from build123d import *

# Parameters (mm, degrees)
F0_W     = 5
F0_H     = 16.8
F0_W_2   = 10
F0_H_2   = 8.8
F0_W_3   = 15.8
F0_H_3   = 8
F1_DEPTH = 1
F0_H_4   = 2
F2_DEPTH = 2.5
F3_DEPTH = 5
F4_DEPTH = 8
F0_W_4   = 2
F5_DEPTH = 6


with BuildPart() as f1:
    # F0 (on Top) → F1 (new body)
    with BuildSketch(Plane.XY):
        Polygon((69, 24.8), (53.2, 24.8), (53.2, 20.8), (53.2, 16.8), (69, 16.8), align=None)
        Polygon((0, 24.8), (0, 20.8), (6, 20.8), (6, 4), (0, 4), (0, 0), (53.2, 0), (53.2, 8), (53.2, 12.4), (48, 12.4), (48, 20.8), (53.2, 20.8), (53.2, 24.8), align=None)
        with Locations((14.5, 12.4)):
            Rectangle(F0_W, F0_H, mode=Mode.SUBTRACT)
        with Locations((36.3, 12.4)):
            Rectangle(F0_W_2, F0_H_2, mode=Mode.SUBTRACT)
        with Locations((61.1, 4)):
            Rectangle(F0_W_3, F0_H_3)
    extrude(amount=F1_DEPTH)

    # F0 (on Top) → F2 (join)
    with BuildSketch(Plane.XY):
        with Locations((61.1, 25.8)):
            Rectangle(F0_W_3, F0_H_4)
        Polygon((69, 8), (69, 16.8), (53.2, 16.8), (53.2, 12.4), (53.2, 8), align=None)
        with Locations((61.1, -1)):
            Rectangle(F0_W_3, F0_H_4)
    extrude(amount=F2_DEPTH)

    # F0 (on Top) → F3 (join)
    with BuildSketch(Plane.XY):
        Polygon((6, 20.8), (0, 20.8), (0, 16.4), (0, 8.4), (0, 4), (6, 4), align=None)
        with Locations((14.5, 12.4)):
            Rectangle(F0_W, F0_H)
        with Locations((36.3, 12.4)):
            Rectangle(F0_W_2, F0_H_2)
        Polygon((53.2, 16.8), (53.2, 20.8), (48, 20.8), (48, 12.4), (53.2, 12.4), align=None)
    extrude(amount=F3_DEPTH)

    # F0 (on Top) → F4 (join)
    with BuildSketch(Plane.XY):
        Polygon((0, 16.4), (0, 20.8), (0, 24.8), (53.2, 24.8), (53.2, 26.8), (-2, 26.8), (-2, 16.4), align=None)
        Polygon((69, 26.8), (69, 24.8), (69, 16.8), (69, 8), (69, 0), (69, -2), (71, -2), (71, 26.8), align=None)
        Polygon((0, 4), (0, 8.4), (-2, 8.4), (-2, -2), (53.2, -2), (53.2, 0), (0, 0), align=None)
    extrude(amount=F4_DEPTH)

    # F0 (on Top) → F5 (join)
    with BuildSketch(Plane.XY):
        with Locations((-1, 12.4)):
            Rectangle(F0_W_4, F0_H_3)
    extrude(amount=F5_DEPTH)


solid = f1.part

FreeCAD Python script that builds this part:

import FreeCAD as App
import Part
import Sketcher
from FreeCAD import Vector
Q = App.Units.Quantity


def add_polygon(sketch, points):
    """Adds a closed chain of lines whose ends are joined by coincident constraints."""
    first, n = sketch.GeometryCount, len(points)
    for a, b in zip(points, points[1:] + points[:1]):
        sketch.addGeometry(Part.LineSegment(App.Vector(*a, 0), App.Vector(*b, 0)), False)
    for i in range(n):
        sketch.addConstraint(Sketcher.Constraint("Coincident", first + i, 2, first + (i + 1) % n, 1))

doc = App.newDocument("Part")
body = doc.addObject("PartDesign::Body", "Body")

# Sketch on XY plane
sketch1 = body.newObject("Sketcher::SketchObject", "Sketch")
sketch1.AttachmentSupport = (doc.getObject("XY_Plane"), [""])
sketch1.MapMode = "FlatFace"
add_polygon(sketch1, [(69, 24.8), (0, 24.8), (0, 20.8), (6, 20.8), (6, 4), (0, 4), (0, 0), (69, 0), (69, 8), (53.2, 8), (53.2, 12.4), (48, 12.4), (48, 20.8), (53.2, 20.8), (53.2, 16.8), (69, 16.8)])  # lines 0-15
add_polygon(sketch1, [(17, 4), (12, 4), (12, 20.8), (17, 20.8)])  # lines 16-19
add_polygon(sketch1, [(41.3, 8), (31.3, 8), (31.3, 16.8), (41.3, 16.8)])  # lines 20-23
sketch1.addConstraint([
    Sketcher.Constraint("Horizontal", 0),
    Sketcher.Constraint("Vertical", 1),
    Sketcher.Constraint("Horizontal", 2),
    Sketcher.Constraint("Vertical", 3),
    Sketcher.Constraint("Horizontal", 4),
    Sketcher.Constraint("Vertical", 5),
    Sketcher.Constraint("Horizontal", 6),
    Sketcher.Constraint("Vertical", 7),
    Sketcher.Constraint("Horizontal", 8),
    Sketcher.Constraint("Vertical", 9),
    Sketcher.Constraint("Horizontal", 10),
    Sketcher.Constraint("Vertical", 11),
    Sketcher.Constraint("Horizontal", 12),
    Sketcher.Constraint("Vertical", 13),
    Sketcher.Constraint("Horizontal", 14),
    Sketcher.Constraint("Vertical", 15),
    Sketcher.Constraint("Horizontal", 16),
    Sketcher.Constraint("Vertical", 17),
    Sketcher.Constraint("Horizontal", 18),
    Sketcher.Constraint("Vertical", 19),
    Sketcher.Constraint("Horizontal", 20),
    Sketcher.Constraint("Vertical", 21),
    Sketcher.Constraint("Horizontal", 22),
    Sketcher.Constraint("Vertical", 23),
    Sketcher.Constraint("Coincident", 5, 2, -1, 1),
    Sketcher.Constraint("PointOnObject", 0, 2, -2),
    Sketcher.Constraint("Horizontal", 2, 2, 11, 2),
    Sketcher.Constraint("Horizontal", 4, 2, 16, 2),
    Sketcher.Constraint("Horizontal", 12, 2, 17, 2),
    Sketcher.Constraint("Horizontal", 8, 2, 20, 2),
    Sketcher.Constraint("Horizontal", 14, 2, 21, 2),
    Sketcher.Constraint("Vertical", 9, 2, 12, 2),
    Sketcher.Constraint("Vertical", 7, 2, 14, 2),
    Sketcher.Constraint("Equal", 1, 5),
    Sketcher.Constraint("Equal", 5, 13),
    Sketcher.Constraint("Equal", 7, 15),
    Sketcher.Constraint("DistanceX", 0, 2, 0, 1, Q("69 mm")),
    Sketcher.Constraint("DistanceX", 2, 1, 2, 2, Q("6 mm")),
    Sketcher.Constraint("DistanceX", 16, 2, 16, 1, Q("5 mm")),
    Sketcher.Constraint("DistanceX", 20, 2, 20, 1, Q("10 mm")),
    Sketcher.Constraint("DistanceY", 1, 2, 1, 1, Q("4 mm")),
    Sketcher.Constraint("DistanceX", 8, 2, 8, 1, Q("15.8 mm")),
    Sketcher.Constraint("DistanceX", 10, 2, 10, 1, Q("5.2 mm")),
    Sketcher.Constraint("DistanceY", 3, 2, 3, 1, Q("16.8 mm")),
    Sketcher.Constraint("DistanceY", 9, 1, 9, 2, Q("4.4 mm")),
    Sketcher.Constraint("DistanceX", -1, 1, 16, 2, Q("12 mm")),
    Sketcher.Constraint("DistanceX", -1, 1, 20, 2, Q("31.3 mm")),
])
pad1 = body.newObject("PartDesign::Pad", "Pad")
pad1.Profile = sketch1
pad1.Length = 1

# Sketch on XY plane
sketch2 = body.newObject("Sketcher::SketchObject", "Sketch001")
sketch2.AttachmentSupport = (doc.getObject("XY_Plane"), [""])
sketch2.MapMode = "FlatFace"
add_polygon(sketch2, [(53.2, 26.8), (53.2, 24.8), (69, 24.8), (69, 26.8)])  # lines 0-3
add_polygon(sketch2, [(69, 8), (69, 16.8), (53.2, 16.8), (53.2, 8)])  # lines 4-7
add_polygon(sketch2, [(53.2, 0), (53.2, -2), (69, -2), (69, 0)])  # lines 8-11
sketch2.addConstraint([
    Sketcher.Constraint("Vertical", 0),
    Sketcher.Constraint("Horizontal", 1),
    Sketcher.Constraint("Vertical", 2),
    Sketcher.Constraint("Horizontal", 3),
    Sketcher.Constraint("Vertical", 4),
    Sketcher.Constraint("Horizontal", 5),
    Sketcher.Constraint("Vertical", 6),
    Sketcher.Constraint("Horizontal", 7),
    Sketcher.Constraint("Vertical", 8),
    Sketcher.Constraint("Horizontal", 9),
    Sketcher.Constraint("Vertical", 10),
    Sketcher.Constraint("Horizontal", 11),
    Sketcher.Constraint("PointOnObject", 10, 2, -1),
    Sketcher.Constraint("Vertical", 2, 2, 4, 2),
    Sketcher.Constraint("Vertical", 3, 2, 5, 2),
    Sketcher.Constraint("Vertical", 6, 2, 8, 2),
    Sketcher.Constraint("Vertical", 7, 2, 9, 2),
    Sketcher.Constraint("Equal", 2, 8),
    Sketcher.Constraint("DistanceY", 0, 2, 0, 1, Q("2 mm")),
    Sketcher.Constraint("DistanceX", 1, 1, 1, 2, Q("15.8 mm")),
    Sketcher.Constraint("DistanceY", 4, 1, 4, 2, Q("8.8 mm")),
    Sketcher.Constraint("DistanceX", -1, 1, 1, 2, Q("69 mm")),
    Sketcher.Constraint("DistanceY", -1, 1, 6, 2, Q("8 mm")),
    Sketcher.Constraint("DistanceY", 4, 2, 1, 2, Q("8 mm")),
])
pad2 = body.newObject("PartDesign::Pad", "Pad001")
pad2.Profile = sketch2
pad2.Length = 2.5

# Sketch on XY plane
sketch3 = body.newObject("Sketcher::SketchObject", "Sketch002")
sketch3.AttachmentSupport = (doc.getObject("XY_Plane"), [""])
sketch3.MapMode = "FlatFace"
add_polygon(sketch3, [(6, 20.8), (0, 20.8), (0, 4), (6, 4)])  # lines 0-3
add_polygon(sketch3, [(12, 20.8), (12, 4), (17, 4), (17, 20.8)])  # lines 4-7
add_polygon(sketch3, [(31.3, 16.8), (31.3, 8), (41.3, 8), (41.3, 16.8)])  # lines 8-11
add_polygon(sketch3, [(53.2, 20.8), (48, 20.8), (48, 12.4), (53.2, 12.4)])  # lines 12-15
sketch3.addConstraint([
    Sketcher.Constraint("Horizontal", 0),
    Sketcher.Constraint("Vertical", 1),
    Sketcher.Constraint("Horizontal", 2),
    Sketcher.Constraint("Vertical", 3),
    Sketcher.Constraint("Vertical", 4),
    Sketcher.Constraint("Horizontal", 5),
    Sketcher.Constraint("Vertical", 6),
    Sketcher.Constraint("Horizontal", 7),
    Sketcher.Constraint("Vertical", 8),
    Sketcher.Constraint("Horizontal", 9),
    Sketcher.Constraint("Vertical", 10),
    Sketcher.Constraint("Horizontal", 11),
    Sketcher.Constraint("Horizontal", 12),
    Sketcher.Constraint("Vertical", 13),
    Sketcher.Constraint("Horizontal", 14),
    Sketcher.Constraint("Vertical", 15),
    Sketcher.Constraint("PointOnObject", 0, 2, -2),
    Sketcher.Constraint("Horizontal", 2, 2, 4, 2),
    Sketcher.Constraint("Horizontal", 3, 2, 6, 2),
    Sketcher.Constraint("Horizontal", 7, 2, 12, 2),
    Sketcher.Constraint("DistanceX", 0, 2, 0, 1, Q("6 mm")),
    Sketcher.Constraint("DistanceX", 5, 1, 5, 2, Q("5 mm")),
    Sketcher.Constraint("DistanceX", 9, 1, 9, 2, Q("10 mm")),
    Sketcher.Constraint("DistanceX", 12, 2, 12, 1, Q("5.2 mm")),
    Sketcher.Constraint("DistanceY", 1, 2, 1, 1, Q("16.8 mm")),
    Sketcher.Constraint("DistanceY", 8, 2, 8, 1, Q("8.8 mm")),
    Sketcher.Constraint("DistanceY", 13, 2, 13, 1, Q("8.4 mm")),
    Sketcher.Constraint("DistanceY", -1, 1, 1, 2, Q("4 mm")),
    Sketcher.Constraint("DistanceX", -1, 1, 4, 2, Q("12 mm")),
    Sketcher.Constraint("DistanceY", -1, 1, 8, 2, Q("8 mm")),
    Sketcher.Constraint("DistanceX", -1, 1, 12, 2, Q("48 mm")),
    Sketcher.Constraint("DistanceX", -1, 1, 8, 2, Q("31.3 mm")),
])
pad3 = body.newObject("PartDesign::Pad", "Pad002")
pad3.Profile = sketch3
pad3.Length = 5

# Sketch on XY plane
sketch4 = body.newObject("Sketcher::SketchObject", "Sketch003")
sketch4.AttachmentSupport = (doc.getObject("XY_Plane"), [""])
sketch4.MapMode = "FlatFace"
add_polygon(sketch4, [(0, 16.4), (0, 24.8), (53.2, 24.8), (53.2, 26.8), (-2, 26.8), (-2, 16.4)])  # lines 0-5
add_polygon(sketch4, [(69, 26.8), (69, -2), (71, -2), (71, 26.8)])  # lines 6-9
add_polygon(sketch4, [(0, 8.4), (-2, 8.4), (-2, -2), (53.2, -2), (53.2, 0), (0, 0)])  # lines 10-15
sketch4.addConstraint([
    Sketcher.Constraint("Vertical", 0),
    Sketcher.Constraint("Horizontal", 1),
    Sketcher.Constraint("Vertical", 2),
    Sketcher.Constraint("Horizontal", 3),
    Sketcher.Constraint("Vertical", 4),
    Sketcher.Constraint("Horizontal", 5),
    Sketcher.Constraint("Vertical", 6),
    Sketcher.Constraint("Horizontal", 7),
    Sketcher.Constraint("Vertical", 8),
    Sketcher.Constraint("Horizontal", 9),
    Sketcher.Constraint("Horizontal", 10),
    Sketcher.Constraint("Vertical", 11),
    Sketcher.Constraint("Horizontal", 12),
    Sketcher.Constraint("Vertical", 13),
    Sketcher.Constraint("Horizontal", 14),
    Sketcher.Constraint("Vertical", 15),
    Sketcher.Constraint("Coincident", 14, 2, -1, 1),
    Sketcher.Constraint("PointOnObject", 0, 2, -2),
    Sketcher.Constraint("Horizontal", 3, 2, 8, 2),
    Sketcher.Constraint("Horizontal", 7, 2, 11, 2),
    Sketcher.Constraint("Vertical", 4, 2, 10, 2),
    Sketcher.Constraint("Vertical", 2, 2, 12, 2),
    Sketcher.Constraint("Equal", 5, 7),
    Sketcher.Constraint("Equal", 10, 2),
    Sketcher.Constraint("Equal", 4, 11),
    Sketcher.Constraint("Equal", 2, 13),
    Sketcher.Constraint("DistanceX", 5, 1, 5, 2, Q("2 mm")),
    Sketcher.Constraint("DistanceX", 1, 1, 1, 2, Q("53.2 mm")),
    Sketcher.Constraint("DistanceY", 0, 1, 0, 2, Q("8.4 mm")),
    Sketcher.Constraint("DistanceY", 6, 2, 6, 1, Q("28.8 mm")),
    Sketcher.Constraint("DistanceX", -1, 1, 6, 2, Q("69 mm")),
])
pad4 = body.newObject("PartDesign::Pad", "Pad003")
pad4.Profile = sketch4
pad4.Length = 8

# Sketch on XY plane
sketch5 = body.newObject("Sketcher::SketchObject", "Sketch004")
sketch5.AttachmentSupport = (doc.getObject("XY_Plane"), [""])
sketch5.MapMode = "FlatFace"
add_polygon(sketch5, [(-2, 16.4), (-2, 8.4), (0, 8.4), (0, 16.4)])  # lines 0-3
sketch5.addConstraint([
    Sketcher.Constraint("Vertical", 0),
    Sketcher.Constraint("Horizontal", 1),
    Sketcher.Constraint("Vertical", 2),
    Sketcher.Constraint("Horizontal", 3),
    Sketcher.Constraint("PointOnObject", 1, 2, -2),
    Sketcher.Constraint("DistanceX", 1, 1, 1, 2, Q("2 mm")),
    Sketcher.Constraint("DistanceY", 0, 2, 0, 1, Q("8 mm")),
    Sketcher.Constraint("DistanceY", -1, 1, 0, 2, Q("8.4 mm")),
])
pad5 = body.newObject("PartDesign::Pad", "Pad004")
pad5.Profile = sketch5
pad5.Length = 6

doc.recompute()
